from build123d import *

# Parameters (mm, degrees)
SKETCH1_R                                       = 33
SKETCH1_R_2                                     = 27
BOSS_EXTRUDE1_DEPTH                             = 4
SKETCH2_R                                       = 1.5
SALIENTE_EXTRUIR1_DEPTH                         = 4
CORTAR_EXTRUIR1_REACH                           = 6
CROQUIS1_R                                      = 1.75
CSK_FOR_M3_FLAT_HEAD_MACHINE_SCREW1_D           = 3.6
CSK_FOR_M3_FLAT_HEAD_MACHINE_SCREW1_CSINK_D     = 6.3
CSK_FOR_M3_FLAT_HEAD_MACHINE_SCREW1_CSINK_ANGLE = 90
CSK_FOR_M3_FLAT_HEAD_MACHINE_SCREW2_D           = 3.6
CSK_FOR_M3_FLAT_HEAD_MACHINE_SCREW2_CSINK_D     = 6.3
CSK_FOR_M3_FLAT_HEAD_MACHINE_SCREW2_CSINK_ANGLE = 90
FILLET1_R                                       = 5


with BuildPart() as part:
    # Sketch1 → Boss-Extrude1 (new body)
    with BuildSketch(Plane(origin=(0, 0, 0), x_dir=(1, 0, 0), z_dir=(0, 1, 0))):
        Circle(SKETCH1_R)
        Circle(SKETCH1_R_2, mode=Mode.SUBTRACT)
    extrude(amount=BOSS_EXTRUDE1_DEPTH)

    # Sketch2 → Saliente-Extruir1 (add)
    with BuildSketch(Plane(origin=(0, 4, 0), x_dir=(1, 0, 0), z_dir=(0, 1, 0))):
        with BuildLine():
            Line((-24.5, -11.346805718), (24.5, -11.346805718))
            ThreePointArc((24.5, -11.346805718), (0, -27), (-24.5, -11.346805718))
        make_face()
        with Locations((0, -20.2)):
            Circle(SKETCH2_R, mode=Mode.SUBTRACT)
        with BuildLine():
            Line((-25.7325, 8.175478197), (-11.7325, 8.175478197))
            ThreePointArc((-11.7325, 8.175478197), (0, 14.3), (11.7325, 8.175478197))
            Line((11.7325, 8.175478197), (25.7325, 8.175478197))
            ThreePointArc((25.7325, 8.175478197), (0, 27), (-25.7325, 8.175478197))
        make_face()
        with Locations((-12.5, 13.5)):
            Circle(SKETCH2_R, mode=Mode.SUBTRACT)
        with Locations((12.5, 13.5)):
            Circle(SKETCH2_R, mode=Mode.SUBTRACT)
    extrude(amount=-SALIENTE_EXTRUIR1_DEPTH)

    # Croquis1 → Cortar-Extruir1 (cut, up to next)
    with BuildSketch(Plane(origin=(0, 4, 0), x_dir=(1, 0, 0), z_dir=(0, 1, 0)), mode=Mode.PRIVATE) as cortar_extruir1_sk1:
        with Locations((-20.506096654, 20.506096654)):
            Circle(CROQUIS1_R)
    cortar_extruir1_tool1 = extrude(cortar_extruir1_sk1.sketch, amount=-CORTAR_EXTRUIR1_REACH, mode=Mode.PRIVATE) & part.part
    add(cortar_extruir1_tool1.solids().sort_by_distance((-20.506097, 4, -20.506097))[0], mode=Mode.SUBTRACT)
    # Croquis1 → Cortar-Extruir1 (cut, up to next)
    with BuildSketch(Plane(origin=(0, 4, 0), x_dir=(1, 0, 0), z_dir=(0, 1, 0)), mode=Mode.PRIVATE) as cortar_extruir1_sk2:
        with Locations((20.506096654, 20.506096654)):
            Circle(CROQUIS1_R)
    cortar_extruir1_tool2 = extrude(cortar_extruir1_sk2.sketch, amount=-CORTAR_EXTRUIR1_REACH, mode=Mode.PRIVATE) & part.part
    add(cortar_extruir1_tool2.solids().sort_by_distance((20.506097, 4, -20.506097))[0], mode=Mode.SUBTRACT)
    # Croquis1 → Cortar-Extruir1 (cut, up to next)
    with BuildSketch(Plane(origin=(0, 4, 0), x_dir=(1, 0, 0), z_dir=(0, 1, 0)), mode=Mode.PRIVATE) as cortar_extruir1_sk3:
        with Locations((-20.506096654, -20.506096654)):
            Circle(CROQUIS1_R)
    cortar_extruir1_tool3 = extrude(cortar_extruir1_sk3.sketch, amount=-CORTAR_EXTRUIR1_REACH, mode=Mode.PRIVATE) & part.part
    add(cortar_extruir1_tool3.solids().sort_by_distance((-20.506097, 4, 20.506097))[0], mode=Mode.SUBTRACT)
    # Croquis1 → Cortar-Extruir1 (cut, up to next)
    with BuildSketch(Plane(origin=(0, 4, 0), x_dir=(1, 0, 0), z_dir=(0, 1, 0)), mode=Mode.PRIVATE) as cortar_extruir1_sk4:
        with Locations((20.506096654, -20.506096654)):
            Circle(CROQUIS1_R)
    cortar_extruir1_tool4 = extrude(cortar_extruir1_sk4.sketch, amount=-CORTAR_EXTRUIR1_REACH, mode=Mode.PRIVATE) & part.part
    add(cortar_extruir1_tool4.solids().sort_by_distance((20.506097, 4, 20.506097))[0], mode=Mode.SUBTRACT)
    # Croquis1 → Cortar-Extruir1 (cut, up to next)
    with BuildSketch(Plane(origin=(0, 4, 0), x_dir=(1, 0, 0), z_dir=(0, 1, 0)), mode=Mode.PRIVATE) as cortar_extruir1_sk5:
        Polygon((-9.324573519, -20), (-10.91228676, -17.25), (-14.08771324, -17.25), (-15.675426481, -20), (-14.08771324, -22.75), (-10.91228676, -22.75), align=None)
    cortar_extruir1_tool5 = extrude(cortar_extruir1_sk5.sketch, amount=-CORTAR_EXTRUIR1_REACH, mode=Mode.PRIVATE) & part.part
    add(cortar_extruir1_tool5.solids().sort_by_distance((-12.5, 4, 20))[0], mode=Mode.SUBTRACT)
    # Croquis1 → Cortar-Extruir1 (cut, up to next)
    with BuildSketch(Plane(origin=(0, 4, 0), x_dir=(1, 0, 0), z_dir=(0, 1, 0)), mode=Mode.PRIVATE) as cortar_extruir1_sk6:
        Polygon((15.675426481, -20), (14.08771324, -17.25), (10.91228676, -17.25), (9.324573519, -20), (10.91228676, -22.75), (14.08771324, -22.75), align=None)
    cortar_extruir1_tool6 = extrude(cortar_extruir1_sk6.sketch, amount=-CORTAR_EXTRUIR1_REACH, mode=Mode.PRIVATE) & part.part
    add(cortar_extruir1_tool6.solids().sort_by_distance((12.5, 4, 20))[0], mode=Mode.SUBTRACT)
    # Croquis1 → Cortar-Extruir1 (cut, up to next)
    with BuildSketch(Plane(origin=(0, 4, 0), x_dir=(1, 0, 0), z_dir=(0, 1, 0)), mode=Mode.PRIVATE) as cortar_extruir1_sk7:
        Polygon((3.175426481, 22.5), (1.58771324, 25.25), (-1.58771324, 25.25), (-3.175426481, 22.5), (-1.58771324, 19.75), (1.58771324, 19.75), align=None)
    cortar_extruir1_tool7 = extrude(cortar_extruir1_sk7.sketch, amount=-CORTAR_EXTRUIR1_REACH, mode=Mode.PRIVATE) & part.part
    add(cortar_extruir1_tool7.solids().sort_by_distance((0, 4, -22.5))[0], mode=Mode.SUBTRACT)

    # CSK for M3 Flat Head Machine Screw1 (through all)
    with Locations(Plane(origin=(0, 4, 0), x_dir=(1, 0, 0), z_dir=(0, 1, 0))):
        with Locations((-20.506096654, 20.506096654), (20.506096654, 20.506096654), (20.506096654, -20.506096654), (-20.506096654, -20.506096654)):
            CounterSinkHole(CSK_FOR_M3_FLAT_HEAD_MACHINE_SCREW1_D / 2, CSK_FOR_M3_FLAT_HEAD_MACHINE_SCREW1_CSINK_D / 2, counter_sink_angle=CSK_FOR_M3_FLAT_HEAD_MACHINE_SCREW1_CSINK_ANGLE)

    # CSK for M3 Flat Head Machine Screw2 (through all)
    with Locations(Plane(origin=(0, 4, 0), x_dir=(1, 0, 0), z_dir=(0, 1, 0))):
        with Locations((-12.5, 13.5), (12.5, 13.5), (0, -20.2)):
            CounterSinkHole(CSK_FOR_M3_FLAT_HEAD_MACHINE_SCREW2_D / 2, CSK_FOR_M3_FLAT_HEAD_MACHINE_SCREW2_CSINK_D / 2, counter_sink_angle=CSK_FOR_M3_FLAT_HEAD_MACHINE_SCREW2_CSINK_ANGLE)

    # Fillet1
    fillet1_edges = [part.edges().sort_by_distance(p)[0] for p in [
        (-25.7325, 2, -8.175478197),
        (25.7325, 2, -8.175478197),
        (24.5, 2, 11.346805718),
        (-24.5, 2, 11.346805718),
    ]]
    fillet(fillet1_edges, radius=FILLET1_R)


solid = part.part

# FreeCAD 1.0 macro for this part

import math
import FreeCAD as App
import Part
import Sketcher

V = App.Vector
Q = App.Units.Quantity


def edges_at(feature, points):
    """Names of the edges that pass closest to the given points."""
    edges = feature.Shape.Edges
    near = lambda p: min(range(len(edges)), key=lambda i: edges[i].distToShape(Part.Vertex(*p))[0])
    return sorted({f"Edge{near(p) + 1}" for p in points})


def add_polygon(sketch, points):
    """Adds a closed chain of lines whose ends are joined by coincident constraints."""
    first, n = sketch.GeometryCount, len(points)
    for a, b in zip(points, points[1:] + points[:1]):
        sketch.addGeometry(Part.LineSegment(App.Vector(*a, 0), App.Vector(*b, 0)), False)
    for i in range(n):
        sketch.addConstraint(Sketcher.Constraint("Coincident", first + i, 2, first + (i + 1) % n, 1))

doc = App.newDocument("Part")
body = doc.addObject("PartDesign::Body", "Body")

sketch1 = body.newObject("Sketcher::SketchObject", "Sketch")
sketch1.AttachmentSupport = (doc.getObject("XZ_Plane"), [""])
sketch1.MapMode = "FlatFace"
sketch1.addGeometry(Part.Circle(V(0, 0, 0), V(0, 0, 1), 33), False)
sketch1.addGeometry(Part.Circle(V(0, 0, 0), V(0, 0, 1), 27), False)
sketch1.addConstraint(Sketcher.Constraint("Coincident", 0, 3, -1, 1))
sketch1.addConstraint(Sketcher.Constraint("Coincident", 1, 3, -1, 1))
sketch1.addConstraint(Sketcher.Constraint("Diameter", 0, Q("66 mm")))
sketch1.addConstraint(Sketcher.Constraint("Diameter", 1, Q("54 mm")))
pad1 = body.newObject("PartDesign::Pad", "Pad")
pad1.Profile = sketch1
pad1.Length = 4
pad1.Reversed = True

sketch2 = body.newObject("Sketcher::SketchObject", "Sketch001")
sketch2.AttachmentSupport = (doc.getObject("XZ_Plane"), [""])
sketch2.MapMode = "FlatFace"
sketch2.AttachmentOffset = App.Placement(V(0, 0, -4), App.Rotation())
sketch2.addGeometry(Part.LineSegment(V(24.5, 11.3, 0), V(-24.5, 11.3, 0)), False)
sketch2.addGeometry(Part.ArcOfCircle(Part.Circle(V(0, 0, 0), V(0, 0, 1), 27), math.radians(25), math.radians(155)), False)
sketch2.addGeometry(Part.Circle(V(0, 20.2, 0), V(0, 0, 1), 1.5), False)
sketch2.addGeometry(Part.LineSegment(V(-25.7, -8.2, 0), V(-11.7, -8.2, 0)), False)
sketch2.addGeometry(Part.ArcOfCircle(Part.Circle(V(0, 0, 0), V(0, 0, 1), 14.3), math.radians(-145), math.radians(-35)), False)
sketch2.addGeometry(Part.LineSegment(V(11.7, -8.2, 0), V(25.7, -8.2, 0)), False)
sketch2.addGeometry(Part.ArcOfCircle(Part.Circle(V(0, 0, 0), V(0, 0, 1), 27), math.radians(-162), math.radians(-18)), False)
sketch2.addGeometry(Part.Circle(V(-12.5, -13.5, 0), V(0, 0, 1), 1.5), False)
sketch2.addGeometry(Part.Circle(V(12.5, -13.5, 0), V(0, 0, 1), 1.5), False)
sketch2.addConstraint(Sketcher.Constraint("Coincident", 0, 1, 1, 1))
sketch2.addConstraint(Sketcher.Constraint("Coincident", 1, 2, 0, 2))
sketch2.addConstraint(Sketcher.Constraint("Coincident", 3, 2, 4, 1))
sketch2.addConstraint(Sketcher.Constraint("Coincident", 4, 2, 5, 1))
sketch2.addConstraint(Sketcher.Constraint("Coincident", 5, 2, 6, 2))
sketch2.addConstraint(Sketcher.Constraint("Coincident", 6, 1, 3, 1))
sketch2.addConstraint(Sketcher.Constraint("Horizontal", 0))
sketch2.addConstraint(Sketcher.Constraint("Horizontal", 3))
sketch2.addConstraint(Sketcher.Constraint("Horizontal", 5))
sketch2.addConstraint(Sketcher.Constraint("Coincident", 1, 3, -1, 1))
sketch2.addConstraint(Sketcher.Constraint("Coincident", 4, 3, -1, 1))
sketch2.addConstraint(Sketcher.Constraint("Coincident", 6, 3, -1, 1))
sketch2.addConstraint(Sketcher.Constraint("Equal", 1, 6))
sketch2.addConstraint(Sketcher.Constraint("Equal", 2, 7))
sketch2.addConstraint(Sketcher.Constraint("Equal", 7, 8))
sketch2.addConstraint(Sketcher.Constraint("Symmetric", 7, 3, 8, 3, -2))
sketch2.addConstraint(Sketcher.Constraint("PointOnObject", 2, 3, -2))
sketch2.addConstraint(Sketcher.Constraint("Horizontal", 3, 2, 4, 2))
sketch2.addConstraint(Sketcher.Constraint("Diameter", 2, Q("3 mm")))
sketch2.addConstraint(Sketcher.Constraint("Radius", 1, Q("27 mm")))
sketch2.addConstraint(Sketcher.Constraint("Radius", 4, Q("14.3 mm")))
sketch2.addConstraint(Sketcher.Constraint("DistanceX", 0, 2, 0, 1, Q("49 mm")))
sketch2.addConstraint(Sketcher.Constraint("DistanceX", 3, 1, 3, 2, Q("14 mm")))
sketch2.addConstraint(Sketcher.Constraint("DistanceX", 7, 3, 8, 3, Q("25 mm")))
sketch2.addConstraint(Sketcher.Constraint("DistanceY", -1, 1, 2, 3, Q("20.2 mm")))
sketch2.addConstraint(Sketcher.Constraint("DistanceY", 7, 3, -1, 1, Q("13.5 mm")))
pad2 = body.newObject("PartDesign::Pad", "Pad001")
pad2.Profile = sketch2
pad2.Length = 4

sketch3 = body.newObject("Sketcher::SketchObject", "Sketch002")
sketch3.AttachmentSupport = (doc.getObject("XZ_Plane"), [""])
sketch3.MapMode = "FlatFace"
sketch3.AttachmentOffset = App.Placement(V(0, 0, -4), App.Rotation())
sketch3.addGeometry(Part.Circle(V(-20.5, -20.5, 0), V(0, 0, 1), 1.8), False)
sketch3.addConstraint(Sketcher.Constraint("Diameter", 0, Q("3.5 mm")))
sketch3.addConstraint(Sketcher.Constraint("DistanceX", 0, 3, -1, 1, Q("20.506097 mm")))
sketch3.addConstraint(Sketcher.Constraint("DistanceY", 0, 3, -1, 1, Q("20.506097 mm")))
pocket1 = body.newObject("PartDesign::Pocket", "Pocket")
pocket1.Profile = sketch3
pocket1.Type = "UpToFirst"
pocket1.Reversed = True

sketch4 = body.newObject("Sketcher::SketchObject", "Sketch003")
sketch4.AttachmentSupport = (doc.getObject("XZ_Plane"), [""])
sketch4.MapMode = "FlatFace"
sketch4.AttachmentOffset = App.Placement(V(0, 0, -4), App.Rotation())
sketch4.addGeometry(Part.Circle(V(20.5, -20.5, 0), V(0, 0, 1), 1.8), False)
sketch4.addConstraint(Sketcher.Constraint("Diameter", 0, Q("3.5 mm")))
sketch4.addConstraint(Sketcher.Constraint("DistanceX", -1, 1, 0, 3, Q("20.506097 mm")))
sketch4.addConstraint(Sketcher.Constraint("DistanceY", 0, 3, -1, 1, Q("20.506097 mm")))
pocket2 = body.newObject("PartDesign::Pocket", "Pocket001")
pocket2.Profile = sketch4
pocket2.Type = "UpToFirst"
pocket2.Reversed = True

sketch5 = body.newObject("Sketcher::SketchObject", "Sketch004")
sketch5.AttachmentSupport = (doc.getObject("XZ_Plane"), [""])
sketch5.MapMode = "FlatFace"
sketch5.AttachmentOffset = App.Placement(V(0, 0, -4), App.Rotation())
sketch5.addGeometry(Part.Circle(V(-20.5, 20.5, 0), V(0, 0, 1), 1.8), False)
sketch5.addConstraint(Sketcher.Constraint("Diameter", 0, Q("3.5 mm")))
sketch5.addConstraint(Sketcher.Constraint("DistanceX", 0, 3, -1, 1, Q("20.506097 mm")))
sketch5.addConstraint(Sketcher.Constraint("DistanceY", -1, 1, 0, 3, Q("20.506097 mm")))
pocket3 = body.newObject("PartDesign::Pocket", "Pocket002")
pocket3.Profile = sketch5
pocket3.Type = "UpToFirst"
pocket3.Reversed = True

sketch6 = body.newObject("Sketcher::SketchObject", "Sketch005")
sketch6.AttachmentSupport = (doc.getObject("XZ_Plane"), [""])
sketch6.MapMode = "FlatFace"
sketch6.AttachmentOffset = App.Placement(V(0, 0, -4), App.Rotation())
sketch6.addGeometry(Part.Circle(V(20.5, 20.5, 0), V(0, 0, 1), 1.8), False)
sketch6.addConstraint(Sketcher.Constraint("Diameter", 0, Q("3.5 mm")))
sketch6.addConstraint(Sketcher.Constraint("DistanceX", -1, 1, 0, 3, Q("20.506097 mm")))
sketch6.addConstraint(Sketcher.Constraint("DistanceY", -1, 1, 0, 3, Q("20.506097 mm")))
pocket4 = body.newObject("PartDesign::Pocket", "Pocket003")
pocket4.Profile = sketch6
pocket4.Type = "UpToFirst"
pocket4.Reversed = True

sketch7 = body.newObject("Sketcher::SketchObject", "Sketch006")
sketch7.AttachmentSupport = (doc.getObject("XZ_Plane"), [""])
sketch7.MapMode = "FlatFace"
sketch7.AttachmentOffset = App.Placement(V(0, 0, -4), App.Rotation())
add_polygon(sketch7, [(-9.3, 20), (-10.9, 17.2), (-14.1, 17.2), (-15.7, 20), (-14.1, 22.8), (-10.9, 22.8)])
sketch7.addConstraint(Sketcher.Constraint("Horizontal", 1))
sketch7.addConstraint(Sketcher.Constraint("Horizontal", 4))
sketch7.addConstraint(Sketcher.Constraint("Parallel", 0, 3))
sketch7.addConstraint(Sketcher.Constraint("Parallel", 2, 5))
sketch7.addConstraint(Sketcher.Constraint("Horizontal", 2, 2, 5, 2))
sketch7.addConstraint(Sketcher.Constraint("Vertical", 1, 2, 3, 2))
sketch7.addConstraint(Sketcher.Constraint("Vertical", 0, 2, 4, 2))
sketch7.addConstraint(Sketcher.Constraint("Angle", 0, Q("-120 deg")))
sketch7.addConstraint(Sketcher.Constraint("DistanceY", -1, 1, 2, 2, Q("20 mm")))
sketch7.addConstraint(Sketcher.Constraint("DistanceY", 1, 2, 3, 2, Q("5.5 mm")))
sketch7.addConstraint(Sketcher.Constraint("DistanceX", 1, 2, 1, 1, Q("3.175426 mm")))
sketch7.addConstraint(Sketcher.Constraint("DistanceX", 0, 2, -1, 1, Q("10.912287 mm")))
pocket5 = body.newObject("PartDesign::Pocket", "Pocket004")
pocket5.Profile = sketch7
pocket5.Type = "UpToFirst"
pocket5.Reversed = True

sketch8 = body.newObject("Sketcher::SketchObject", "Sketch007")
sketch8.AttachmentSupport = (doc.getObject("XZ_Plane"), [""])
sketch8.MapMode = "FlatFace"
sketch8.AttachmentOffset = App.Placement(V(0, 0, -4), App.Rotation())
add_polygon(sketch8, [(15.7, 20), (14.1, 17.2), (10.9, 17.2), (9.3, 20), (10.9, 22.8), (14.1, 22.8)])
sketch8.addConstraint(Sketcher.Constraint("Horizontal", 1))
sketch8.addConstraint(Sketcher.Constraint("Horizontal", 4))
sketch8.addConstraint(Sketcher.Constraint("Parallel", 0, 3))
sketch8.addConstraint(Sketcher.Constraint("Parallel", 2, 5))
sketch8.addConstraint(Sketcher.Constraint("Horizontal", 2, 2, 5, 2))
sketch8.addConstraint(Sketcher.Constraint("Vertical", 1, 2, 3, 2))
sketch8.addConstraint(Sketcher.Constraint("Vertical", 0, 2, 4, 2))
sketch8.addConstraint(Sketcher.Constraint("Angle", 0, Q("-120 deg")))
sketch8.addConstraint(Sketcher.Constraint("DistanceY", -1, 1, 2, 2, Q("20 mm")))
sketch8.addConstraint(Sketcher.Constraint("DistanceY", 1, 2, 3, 2, Q("5.5 mm")))
sketch8.addConstraint(Sketcher.Constraint("DistanceX", 1, 2, 1, 1, Q("3.175426 mm")))
sketch8.addConstraint(Sketcher.Constraint("DistanceX", -1, 1, 0, 2, Q("14.087713 mm")))
pocket6 = body.newObject("PartDesign::Pocket", "Pocket005")
pocket6.Profile = sketch8
pocket6.Type = "UpToFirst"
pocket6.Reversed = True

sketch9 = body.newObject("Sketcher::SketchObject", "Sketch008")
sketch9.AttachmentSupport = (doc.getObject("XZ_Plane"), [""])
sketch9.MapMode = "FlatFace"
sketch9.AttachmentOffset = App.Placement(V(0, 0, -4), App.Rotation())
add_polygon(sketch9, [(3.2, -22.5), (1.6, -25.2), (-1.6, -25.2), (-3.2, -22.5), (-1.6, -19.8), (1.6, -19.8)])
sketch9.addConstraint(Sketcher.Constraint("Horizontal", 1))
sketch9.addConstraint(Sketcher.Constraint("Horizontal", 4))
sketch9.addConstraint(Sketcher.Constraint("Symmetric", 2, 2, 5, 2, -2))
sketch9.addConstraint(Sketcher.Constraint("Parallel", 0, 3))
sketch9.addConstraint(Sketcher.Constraint("Parallel", 2, 5))
sketch9.addConstraint(Sketcher.Constraint("Vertical", 1, 2, 3, 2))
sketch9.addConstraint(Sketcher.Constraint("Vertical", 0, 2, 4, 2))
sketch9.addConstraint(Sketcher.Constraint("Angle", 0, Q("-120 deg")))
sketch9.addConstraint(Sketcher.Constraint("DistanceY", 2, 2, -1, 1, Q("22.5 mm")))
sketch9.addConstraint(Sketcher.Constraint("DistanceY", 1, 2, 3, 2, Q("5.5 mm")))
sketch9.addConstraint(Sketcher.Constraint("DistanceX", 1, 2, 1, 1, Q("3.175426 mm")))
pocket7 = body.newObject("PartDesign::Pocket", "Pocket006")
pocket7.Profile = sketch9
pocket7.Type = "UpToFirst"
pocket7.Reversed = True

sketch10 = body.newObject("Sketcher::SketchObject", "Sketch009")
sketch10.AttachmentSupport = (doc.getObject("XZ_Plane"), [""])
sketch10.MapMode = "FlatFace"
sketch10.AttachmentOffset = App.Placement(V(0, 0, -4), App.Rotation())
sketch10.addGeometry(Part.Circle(V(-20.5, -20.5, 0), V(0, 0, 1), 1.8), False)
sketch10.addGeometry(Part.Circle(V(20.5, -20.5, 0), V(0, 0, 1), 1.8), False)
sketch10.addGeometry(Part.Circle(V(20.5, 20.5, 0), V(0, 0, 1), 1.8), False)
sketch10.addGeometry(Part.Circle(V(-20.5, 20.5, 0), V(0, 0, 1), 1.8), False)
sketch10.addConstraint(Sketcher.Constraint("Equal", 0, 1))
sketch10.addConstraint(Sketcher.Constraint("Equal", 1, 2))
sketch10.addConstraint(Sketcher.Constraint("Equal", 2, 3))
sketch10.addConstraint(Sketcher.Constraint("Symmetric", 0, 3, 2, 3, -1, 1))
sketch10.addConstraint(Sketcher.Constraint("Symmetric", 1, 3, 3, 3, -1, 1))
sketch10.addConstraint(Sketcher.Constraint("Symmetric", 0, 3, 1, 3, -2))
sketch10.addConstraint(Sketcher.Constraint("Diameter", 0, Q("3.6 mm")))
sketch10.addConstraint(Sketcher.Constraint("DistanceX", 0, 3, -1, 1, Q("20.506097 mm")))
sketch10.addConstraint(Sketcher.Constraint("DistanceY", 0, 3, -1, 1, Q("20.506097 mm")))
doc.recompute()
hole = body.newObject("PartDesign::Hole", "Hole")
hole.Profile = sketch10
hole.ThreadType = "None"
hole.Diameter = 3.6
hole.DepthType = "ThroughAll"
hole.HoleCutType = "Countersink"
hole.HoleCutDiameter = 6.3
hole.HoleCutCountersinkAngle = 90
hole.Reversed = True

sketch11 = body.newObject("Sketcher::SketchObject", "Sketch010")
sketch11.AttachmentSupport = (doc.getObject("XZ_Plane"), [""])
sketch11.MapMode = "FlatFace"
sketch11.AttachmentOffset = App.Placement(V(0, 0, -4), App.Rotation())
sketch11.addGeometry(Part.Circle(V(-12.5, -13.5, 0), V(0, 0, 1), 1.8), False)
sketch11.addGeometry(Part.Circle(V(12.5, -13.5, 0), V(0, 0, 1), 1.8), False)
sketch11.addGeometry(Part.Circle(V(0, 20.2, 0), V(0, 0, 1), 1.8), False)
sketch11.addConstraint(Sketcher.Constraint("Equal", 0, 1))
sketch11.addConstraint(Sketcher.Constraint("Equal", 1, 2))
sketch11.addConstraint(Sketcher.Constraint("Symmetric", 0, 3, 1, 3, -2))
sketch11.addConstraint(Sketcher.Constraint("PointOnObject", 2, 3, -2))
sketch11.addConstraint(Sketcher.Constraint("Diameter", 0, Q("3.6 mm")))
sketch11.addConstraint(Sketcher.Constraint("DistanceX", 0, 3, 1, 3, Q("25 mm")))
sketch11.addConstraint(Sketcher.Constraint("DistanceY", 0, 3, -1, 1, Q("13.5 mm")))
sketch11.addConstraint(Sketcher.Constraint("DistanceY", -1, 1, 2, 3, Q("20.2 mm")))
doc.recompute()
hole2 = body.newObject("PartDesign::Hole", "Hole001")
hole2.Profile = sketch11
hole2.ThreadType = "None"
hole2.Diameter = 3.6
hole2.DepthType = "ThroughAll"
hole2.HoleCutType = "Countersink"
hole2.HoleCutDiameter = 6.3
hole2.HoleCutCountersinkAngle = 90
hole2.Reversed = True
doc.recompute()

fillet = body.newObject("PartDesign::Fillet", "Fillet")
fillet.Base = (hole2, edges_at(hole2, [
    (-25.733, 2, -8.175),
    (25.733, 2, -8.175),
    (24.5, 2, 11.347),
    (-24.5, 2, 11.347),
]))
fillet.Radius = 5

doc.recompute()
